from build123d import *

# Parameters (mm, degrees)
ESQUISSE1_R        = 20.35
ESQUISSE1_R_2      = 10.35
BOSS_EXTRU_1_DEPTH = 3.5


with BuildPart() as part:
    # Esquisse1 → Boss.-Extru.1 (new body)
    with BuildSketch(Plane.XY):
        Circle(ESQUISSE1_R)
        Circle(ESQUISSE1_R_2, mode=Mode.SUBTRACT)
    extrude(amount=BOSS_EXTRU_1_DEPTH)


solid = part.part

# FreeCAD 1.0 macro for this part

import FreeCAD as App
import Part
import Sketcher

doc = App.newDocument("Part")
body = doc.addObject("PartDesign::Body", "Body")

sketch1 = body.newObject("Sketcher::SketchObject", "Sketch")
sketch1.AttachmentSupport = (doc.getObject("XY_Plane"), [""])
sketch1.MapMode = "FlatFace"
sketch1.addGeometry([
    Part.Circle(App.Vector(0, 0, 0), App.Vector(0, 0, 1), 20),
    Part.Circle(App.Vector(0, 0, 0), App.Vector(0, 0, 1), 10),
], False)
sketch1.addConstraint([
    Sketcher.Constraint("Coincident", 0, 3, -1, 1),
    Sketcher.Constraint("Coincident", 1, 3, -1, 1),
    Sketcher.Constraint("Diameter", 0, 40.7),
    Sketcher.Constraint("Diameter", 1, 20.7),
])
pad1 = body.newObject("PartDesign::Pad", "Pad")
pad1.Profile = sketch1
pad1.Length = 3.5

doc.recompute()
